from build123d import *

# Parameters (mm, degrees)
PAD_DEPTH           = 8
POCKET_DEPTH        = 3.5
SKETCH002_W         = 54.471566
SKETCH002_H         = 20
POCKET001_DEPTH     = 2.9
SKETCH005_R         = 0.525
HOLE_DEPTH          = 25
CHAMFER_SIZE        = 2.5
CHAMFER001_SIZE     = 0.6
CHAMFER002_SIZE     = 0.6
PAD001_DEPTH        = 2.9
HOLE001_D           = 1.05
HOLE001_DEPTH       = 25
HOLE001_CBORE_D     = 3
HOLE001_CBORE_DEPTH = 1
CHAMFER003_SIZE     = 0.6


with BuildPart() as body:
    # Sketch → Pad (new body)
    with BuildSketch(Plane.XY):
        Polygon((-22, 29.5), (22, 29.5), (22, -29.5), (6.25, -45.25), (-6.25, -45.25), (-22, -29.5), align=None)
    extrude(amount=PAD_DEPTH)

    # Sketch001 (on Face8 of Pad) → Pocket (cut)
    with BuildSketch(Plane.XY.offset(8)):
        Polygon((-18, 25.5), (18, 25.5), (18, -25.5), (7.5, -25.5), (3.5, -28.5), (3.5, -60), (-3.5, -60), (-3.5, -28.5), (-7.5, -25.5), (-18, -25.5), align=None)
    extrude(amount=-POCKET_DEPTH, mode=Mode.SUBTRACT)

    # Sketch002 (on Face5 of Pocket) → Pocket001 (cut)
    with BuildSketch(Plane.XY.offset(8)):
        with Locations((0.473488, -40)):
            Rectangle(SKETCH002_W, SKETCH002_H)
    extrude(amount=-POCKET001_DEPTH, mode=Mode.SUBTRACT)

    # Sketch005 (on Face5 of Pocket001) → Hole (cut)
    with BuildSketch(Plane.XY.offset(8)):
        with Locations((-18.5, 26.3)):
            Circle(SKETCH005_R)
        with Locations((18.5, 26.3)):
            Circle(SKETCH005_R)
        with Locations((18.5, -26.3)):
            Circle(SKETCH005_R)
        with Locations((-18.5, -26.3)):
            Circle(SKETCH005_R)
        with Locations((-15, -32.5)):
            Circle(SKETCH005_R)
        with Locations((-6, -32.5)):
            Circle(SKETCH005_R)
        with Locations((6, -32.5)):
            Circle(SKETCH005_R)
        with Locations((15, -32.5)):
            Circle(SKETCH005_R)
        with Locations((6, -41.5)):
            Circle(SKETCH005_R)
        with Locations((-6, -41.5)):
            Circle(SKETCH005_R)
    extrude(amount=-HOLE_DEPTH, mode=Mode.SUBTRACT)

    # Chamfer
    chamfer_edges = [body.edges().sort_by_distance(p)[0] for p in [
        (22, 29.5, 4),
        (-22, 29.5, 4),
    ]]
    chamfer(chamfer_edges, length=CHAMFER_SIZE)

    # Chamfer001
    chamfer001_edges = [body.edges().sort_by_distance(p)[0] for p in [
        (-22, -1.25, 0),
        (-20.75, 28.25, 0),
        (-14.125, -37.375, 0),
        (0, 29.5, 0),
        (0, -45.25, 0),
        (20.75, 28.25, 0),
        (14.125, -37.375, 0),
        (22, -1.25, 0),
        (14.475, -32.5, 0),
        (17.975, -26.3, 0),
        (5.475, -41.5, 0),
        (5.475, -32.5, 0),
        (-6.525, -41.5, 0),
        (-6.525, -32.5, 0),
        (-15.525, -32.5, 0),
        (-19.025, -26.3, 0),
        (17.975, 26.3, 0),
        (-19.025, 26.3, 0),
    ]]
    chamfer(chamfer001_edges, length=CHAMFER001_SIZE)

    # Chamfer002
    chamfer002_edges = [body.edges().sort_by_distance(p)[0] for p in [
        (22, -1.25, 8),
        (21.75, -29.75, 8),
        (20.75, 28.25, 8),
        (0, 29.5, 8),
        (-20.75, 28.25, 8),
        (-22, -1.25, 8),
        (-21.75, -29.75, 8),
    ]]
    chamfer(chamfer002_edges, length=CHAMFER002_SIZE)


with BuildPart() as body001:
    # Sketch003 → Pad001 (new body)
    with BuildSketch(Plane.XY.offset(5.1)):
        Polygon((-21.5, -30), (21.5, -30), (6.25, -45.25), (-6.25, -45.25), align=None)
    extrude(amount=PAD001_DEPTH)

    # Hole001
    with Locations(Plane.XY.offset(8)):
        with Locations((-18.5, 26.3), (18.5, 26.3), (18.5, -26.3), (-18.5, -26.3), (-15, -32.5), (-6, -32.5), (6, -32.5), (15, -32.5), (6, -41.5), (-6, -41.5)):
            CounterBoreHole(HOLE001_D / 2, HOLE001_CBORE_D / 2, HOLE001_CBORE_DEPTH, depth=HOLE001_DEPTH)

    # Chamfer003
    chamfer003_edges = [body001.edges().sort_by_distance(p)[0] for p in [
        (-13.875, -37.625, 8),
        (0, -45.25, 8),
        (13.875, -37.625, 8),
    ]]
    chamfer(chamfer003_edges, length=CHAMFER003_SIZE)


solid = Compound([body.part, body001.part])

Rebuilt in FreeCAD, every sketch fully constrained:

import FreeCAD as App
import Part
import Sketcher

V = App.Vector
Q = App.Units.Quantity


def edges_at(feature, points):
    """Names of the edges that pass closest to the given points."""
    edges = feature.Shape.Edges
    near = lambda p: min(range(len(edges)), key=lambda i: edges[i].distToShape(Part.Vertex(*p))[0])
    return sorted({f"Edge{near(p) + 1}" for p in points})


def add_polygon(sketch, points):
    """Adds a closed chain of lines whose ends are joined by coincident constraints."""
    first, n = sketch.GeometryCount, len(points)
    for a, b in zip(points, points[1:] + points[:1]):
        sketch.addGeometry(Part.LineSegment(App.Vector(*a, 0), App.Vector(*b, 0)), False)
    for i in range(n):
        sketch.addConstraint(Sketcher.Constraint("Coincident", first + i, 2, first + (i + 1) % n, 1))

doc = App.newDocument("Part")
body = doc.addObject("PartDesign::Body", "Body")

sketch1 = body.newObject("Sketcher::SketchObject", "Sketch")
sketch1.AttachmentSupport = (doc.getObject("XY_Plane"), [""])
sketch1.MapMode = "FlatFace"
add_polygon(sketch1, [(22, 30), (-22, 30), (-22, -30), (-6, -45), (6, -45), (22, -30)])
sketch1.addConstraint([
    Sketcher.Constraint("Horizontal", 0),
    Sketcher.Constraint("Vertical", 1),
    Sketcher.Constraint("Horizontal", 3),
    Sketcher.Constraint("Vertical", 5),
    Sketcher.Constraint("Symmetric", 0, 2, 4, 2, -1, 1),
    Sketcher.Constraint("Perpendicular", 2, 4),
    Sketcher.Constraint("Horizontal", 1, 2, 4, 2),
    Sketcher.Constraint("Equal", 2, 4),
    Sketcher.Constraint("DistanceX", 0, 2, 0, 1, Q("44 mm")),
    Sketcher.Constraint("DistanceY", 1, 2, 1, 1, Q("59 mm")),
    Sketcher.Constraint("DistanceX", 3, 1, 3, 2, Q("12.5 mm")),
])
pad1 = body.newObject("PartDesign::Pad", "Pad")
pad1.Profile = sketch1
pad1.Length = 8

sketch2 = body.newObject("Sketcher::SketchObject", "Sketch001")
sketch2.AttachmentSupport = (doc.getObject("XY_Plane"), [""])
sketch2.MapMode = "FlatFace"
sketch2.AttachmentOffset = App.Placement(V(0, 0, 8), App.Rotation())
add_polygon(sketch2, [(18, 26), (-18, 26), (-18, -26), (-8, -26), (-4, -28), (-4, -60), (4, -60), (4, -28), (8, -26), (18, -26)])
sketch2.addConstraint([
    Sketcher.Constraint("Horizontal", 0),
    Sketcher.Constraint("Vertical", 1),
    Sketcher.Constraint("Horizontal", 2),
    Sketcher.Constraint("Vertical", 4),
    Sketcher.Constraint("Horizontal", 5),
    Sketcher.Constraint("Vertical", 6),
    Sketcher.Constraint("Horizontal", 8),
    Sketcher.Constraint("Vertical", 9),
    Sketcher.Constraint("Symmetric", 0, 2, 8, 2, -1, 1),
    Sketcher.Constraint("Symmetric", 3, 2, 6, 2, -2),
    Sketcher.Constraint("Symmetric", 2, 2, 7, 2, -2),
    Sketcher.Constraint("DistanceX", 0, 2, 0, 1, Q("36 mm")),
    Sketcher.Constraint("DistanceX", 5, 1, 5, 2, Q("7 mm")),
    Sketcher.Constraint("DistanceY", 1, 2, 1, 1, Q("51 mm")),
    Sketcher.Constraint("Distance", 3, Q("5 mm")),
    Sketcher.Constraint("DistanceX", 2, 1, 2, 2, Q("10.5 mm")),
    Sketcher.Constraint("DistanceY", 4, 2, 4, 1, Q("31.5 mm")),
])
pocket1 = body.newObject("PartDesign::Pocket", "Pocket")
pocket1.Profile = sketch2
pocket1.Length = 3.5

sketch3 = body.newObject("Sketcher::SketchObject", "Sketch002")
sketch3.AttachmentSupport = (doc.getObject("XY_Plane"), [""])
sketch3.MapMode = "FlatFace"
sketch3.AttachmentOffset = App.Placement(V(0, 0, 8), App.Rotation())
add_polygon(sketch3, [(-27, -30), (-27, -50), (28, -50), (28, -30)])
sketch3.addConstraint([
    Sketcher.Constraint("Vertical", 0),
    Sketcher.Constraint("Horizontal", 1),
    Sketcher.Constraint("Vertical", 2),
    Sketcher.Constraint("Horizontal", 3),
    Sketcher.Constraint("DistanceY", 0, 2, 0, 1, Q("20 mm")),
    Sketcher.Constraint("DistanceY", 0, 2, -1, 1, Q("50 mm")),
    Sketcher.Constraint("DistanceX", 1, 1, 1, 2, Q("54.471566 mm")),
    Sketcher.Constraint("DistanceX", -1, 1, 1, 2, Q("27.709271 mm")),
])
pocket2 = body.newObject("PartDesign::Pocket", "Pocket001")
pocket2.Profile = sketch3
pocket2.Length = 2.9

sketch4 = body.newObject("Sketcher::SketchObject", "Sketch003")
sketch4.AttachmentSupport = (doc.getObject("XY_Plane"), [""])
sketch4.MapMode = "FlatFace"
sketch4.AttachmentOffset = App.Placement(V(0, 0, 8), App.Rotation())
sketch4.addGeometry([
    Part.Circle(V(-18.5, 26.3, 0), V(0, 0, 1), 0.5),
    Part.Circle(V(18.5, 26.3, 0), V(0, 0, 1), 0.5),
    Part.Circle(V(18.5, -26.3, 0), V(0, 0, 1), 0.5),
    Part.Circle(V(-18.5, -26.3, 0), V(0, 0, 1), 0.5),
    Part.Circle(V(-15, -32.5, 0), V(0, 0, 1), 0.5),
    Part.Circle(V(-6, -32.5, 0), V(0, 0, 1), 0.5),
    Part.Circle(V(6, -32.5, 0), V(0, 0, 1), 0.5),
    Part.Circle(V(15, -32.5, 0), V(0, 0, 1), 0.5),
    Part.Circle(V(6, -41.5, 0), V(0, 0, 1), 0.5),
    Part.Circle(V(-6, -41.5, 0), V(0, 0, 1), 0.5),
], False)
sketch4.addConstraint([
    Sketcher.Constraint("Equal", 0, 1),
    Sketcher.Constraint("Equal", 1, 2),
    Sketcher.Constraint("Equal", 2, 3),
    Sketcher.Constraint("Equal", 3, 4),
    Sketcher.Constraint("Equal", 4, 5),
    Sketcher.Constraint("Equal", 5, 6),
    Sketcher.Constraint("Equal", 6, 7),
    Sketcher.Constraint("Equal", 7, 8),
    Sketcher.Constraint("Equal", 8, 9),
    Sketcher.Constraint("Symmetric", 0, 3, 2, 3, -1, 1),
    Sketcher.Constraint("Symmetric", 1, 3, 3, 3, -1, 1),
    Sketcher.Constraint("Symmetric", 0, 3, 1, 3, -2),
    Sketcher.Constraint("Symmetric", 5, 3, 6, 3, -2),
    Sketcher.Constraint("Symmetric", 4, 3, 7, 3, -2),
    Sketcher.Constraint("Symmetric", 8, 3, 9, 3, -2),
    Sketcher.Constraint("Horizontal", 4, 3, 5, 3),
    Sketcher.Constraint("Vertical", 6, 3, 8, 3),
    Sketcher.Constraint("Diameter", 0, Q("1.05 mm")),
    Sketcher.Constraint("DistanceX", 4, 3, -1, 1, Q("15 mm")),
    Sketcher.Constraint("DistanceX", 5, 3, -1, 1, Q("6 mm")),
    Sketcher.Constraint("DistanceX", 0, 3, 1, 3, Q("37 mm")),
    Sketcher.Constraint("DistanceY", 8, 3, 6, 3, Q("9 mm")),
    Sketcher.Constraint("DistanceY", -1, 1, 0, 3, Q("26.3 mm")),
    Sketcher.Constraint("DistanceY", 4, 3, -1, 1, Q("32.5 mm")),
])
pocket3 = body.newObject("PartDesign::Pocket", "Pocket002")
pocket3.Profile = sketch4
pocket3.Length = 25
doc.recompute()

chamfer = body.newObject("PartDesign::Chamfer", "Chamfer")
chamfer.Base = (pocket3, edges_at(pocket3, [(22, 29.5, 4), (-22, 29.5, 4)]))
chamfer.Size = 2.5
doc.recompute()

chamfer2 = body.newObject("PartDesign::Chamfer", "Chamfer001")
chamfer2.Base = (chamfer, edges_at(chamfer, [
    (-22, -1.25, 0),
    (-20.75, 28.25, 0),
    (-14.125, -37.375, 0),
    (0, 29.5, 0),
    (0, -45.25, 0),
    (20.75, 28.25, 0),
    (14.125, -37.375, 0),
    (22, -1.25, 0),
    (14.475, -32.5, 0),
    (17.975, -26.3, 0),
    (5.475, -41.5, 0),
    (5.475, -32.5, 0),
    (-6.525, -41.5, 0),
    (-6.525, -32.5, 0),
    (-15.525, -32.5, 0),
    (-19.025, -26.3, 0),
    (17.975, 26.3, 0),
    (-19.025, 26.3, 0),
]))
chamfer2.Size = 0.6
doc.recompute()

chamfer3 = body.newObject("PartDesign::Chamfer", "Chamfer002")
chamfer3.Base = (chamfer2, edges_at(chamfer2, [
    (22, -1.25, 8),
    (21.75, -29.75, 8),
    (20.75, 28.25, 8),
    (0, 29.5, 8),
    (-20.75, 28.25, 8),
    (-22, -1.25, 8),
    (-21.75, -29.75, 8),
]))
chamfer3.Size = 0.6
body2 = doc.addObject("PartDesign::Body", "Body001")

sketch5 = body2.newObject("Sketcher::SketchObject", "Sketch004")
sketch5.AttachmentSupport = (doc.getObject("XY_Plane001"), [""])
sketch5.MapMode = "FlatFace"
sketch5.AttachmentOffset = App.Placement(V(0, 0, 5.1), App.Rotation())
add_polygon(sketch5, [(22, -30), (-22, -30), (-6, -45), (6, -45)])
sketch5.addConstraint([
    Sketcher.Constraint("Horizontal", 0),
    Sketcher.Constraint("Horizontal", 2),
    Sketcher.Constraint("Perpendicular", 1, 3),
    Sketcher.Constraint("Equal", 1, 3),
    Sketcher.Constraint("DistanceX", 0, 2, 0, 1, Q("43 mm")),
    Sketcher.Constraint("DistanceX", 2, 1, 2, 2, Q("12.5 mm")),
    Sketcher.Constraint("DistanceY", 0, 2, -1, 1, Q("30 mm")),
    Sketcher.Constraint("DistanceX", 0, 2, -1, 1, Q("21.5 mm")),
])
pad2 = body2.newObject("PartDesign::Pad", "Pad001")
pad2.Profile = sketch5
pad2.Length = 2.9

sketch6 = body2.newObject("Sketcher::SketchObject", "Sketch005")
sketch6.AttachmentSupport = (doc.getObject("XY_Plane001"), [""])
sketch6.MapMode = "FlatFace"
sketch6.AttachmentOffset = App.Placement(V(0, 0, 8), App.Rotation())
sketch6.addGeometry([
    Part.Circle(V(-18.5, 26.3, 0), V(0, 0, 1), 0.5),
    Part.Circle(V(18.5, 26.3, 0), V(0, 0, 1), 0.5),
    Part.Circle(V(18.5, -26.3, 0), V(0, 0, 1), 0.5),
    Part.Circle(V(-18.5, -26.3, 0), V(0, 0, 1), 0.5),
    Part.Circle(V(-15, -32.5, 0), V(0, 0, 1), 0.5),
    Part.Circle(V(-6, -32.5, 0), V(0, 0, 1), 0.5),
    Part.Circle(V(6, -32.5, 0), V(0, 0, 1), 0.5),
    Part.Circle(V(15, -32.5, 0), V(0, 0, 1), 0.5),
    Part.Circle(V(6, -41.5, 0), V(0, 0, 1), 0.5),
    Part.Circle(V(-6, -41.5, 0), V(0, 0, 1), 0.5),
], False)
sketch6.addConstraint([
    Sketcher.Constraint("Equal", 0, 1),
    Sketcher.Constraint("Equal", 1, 2),
    Sketcher.Constraint("Equal", 2, 3),
    Sketcher.Constraint("Equal", 3, 4),
    Sketcher.Constraint("Equal", 4, 5),
    Sketcher.Constraint("Equal", 5, 6),
    Sketcher.Constraint("Equal", 6, 7),
    Sketcher.Constraint("Equal", 7, 8),
    Sketcher.Constraint("Equal", 8, 9),
    Sketcher.Constraint("Symmetric", 0, 3, 2, 3, -1, 1),
    Sketcher.Constraint("Symmetric", 1, 3, 3, 3, -1, 1),
    Sketcher.Constraint("Symmetric", 0, 3, 1, 3, -2),
    Sketcher.Constraint("Symmetric", 5, 3, 6, 3, -2),
    Sketcher.Constraint("Symmetric", 4, 3, 7, 3, -2),
    Sketcher.Constraint("Symmetric", 8, 3, 9, 3, -2),
    Sketcher.Constraint("Horizontal", 4, 3, 5, 3),
    Sketcher.Constraint("Vertical", 6, 3, 8, 3),
    Sketcher.Constraint("Diameter", 0, Q("1.05 mm")),
    Sketcher.Constraint("DistanceX", 4, 3, -1, 1, Q("15 mm")),
    Sketcher.Constraint("DistanceX", 5, 3, -1, 1, Q("6 mm")),
    Sketcher.Constraint("DistanceX", 0, 3, 1, 3, Q("37 mm")),
    Sketcher.Constraint("DistanceY", 8, 3, 6, 3, Q("9 mm")),
    Sketcher.Constraint("DistanceY", -1, 1, 0, 3, Q("26.3 mm")),
    Sketcher.Constraint("DistanceY", 4, 3, -1, 1, Q("32.5 mm")),
])
doc.recompute()
hole = body2.newObject("PartDesign::Hole", "Hole")
hole.Profile = sketch6
hole.ThreadType = "None"
hole.Diameter = 1.05
hole.DepthType = "Dimension"
hole.Depth = 25
hole.DrillPoint = "Flat"
hole.HoleCutType = "Counterbore"
hole.HoleCutDiameter = 3
hole.HoleCutDepth = 1
doc.recompute()

chamfer4 = body2.newObject("PartDesign::Chamfer", "Chamfer003")
chamfer4.Base = (hole, edges_at(hole, [(-13.875, -37.625, 8), (0, -45.25, 8), (13.875, -37.625, 8)]))
chamfer4.Size = 0.6

doc.recompute()
